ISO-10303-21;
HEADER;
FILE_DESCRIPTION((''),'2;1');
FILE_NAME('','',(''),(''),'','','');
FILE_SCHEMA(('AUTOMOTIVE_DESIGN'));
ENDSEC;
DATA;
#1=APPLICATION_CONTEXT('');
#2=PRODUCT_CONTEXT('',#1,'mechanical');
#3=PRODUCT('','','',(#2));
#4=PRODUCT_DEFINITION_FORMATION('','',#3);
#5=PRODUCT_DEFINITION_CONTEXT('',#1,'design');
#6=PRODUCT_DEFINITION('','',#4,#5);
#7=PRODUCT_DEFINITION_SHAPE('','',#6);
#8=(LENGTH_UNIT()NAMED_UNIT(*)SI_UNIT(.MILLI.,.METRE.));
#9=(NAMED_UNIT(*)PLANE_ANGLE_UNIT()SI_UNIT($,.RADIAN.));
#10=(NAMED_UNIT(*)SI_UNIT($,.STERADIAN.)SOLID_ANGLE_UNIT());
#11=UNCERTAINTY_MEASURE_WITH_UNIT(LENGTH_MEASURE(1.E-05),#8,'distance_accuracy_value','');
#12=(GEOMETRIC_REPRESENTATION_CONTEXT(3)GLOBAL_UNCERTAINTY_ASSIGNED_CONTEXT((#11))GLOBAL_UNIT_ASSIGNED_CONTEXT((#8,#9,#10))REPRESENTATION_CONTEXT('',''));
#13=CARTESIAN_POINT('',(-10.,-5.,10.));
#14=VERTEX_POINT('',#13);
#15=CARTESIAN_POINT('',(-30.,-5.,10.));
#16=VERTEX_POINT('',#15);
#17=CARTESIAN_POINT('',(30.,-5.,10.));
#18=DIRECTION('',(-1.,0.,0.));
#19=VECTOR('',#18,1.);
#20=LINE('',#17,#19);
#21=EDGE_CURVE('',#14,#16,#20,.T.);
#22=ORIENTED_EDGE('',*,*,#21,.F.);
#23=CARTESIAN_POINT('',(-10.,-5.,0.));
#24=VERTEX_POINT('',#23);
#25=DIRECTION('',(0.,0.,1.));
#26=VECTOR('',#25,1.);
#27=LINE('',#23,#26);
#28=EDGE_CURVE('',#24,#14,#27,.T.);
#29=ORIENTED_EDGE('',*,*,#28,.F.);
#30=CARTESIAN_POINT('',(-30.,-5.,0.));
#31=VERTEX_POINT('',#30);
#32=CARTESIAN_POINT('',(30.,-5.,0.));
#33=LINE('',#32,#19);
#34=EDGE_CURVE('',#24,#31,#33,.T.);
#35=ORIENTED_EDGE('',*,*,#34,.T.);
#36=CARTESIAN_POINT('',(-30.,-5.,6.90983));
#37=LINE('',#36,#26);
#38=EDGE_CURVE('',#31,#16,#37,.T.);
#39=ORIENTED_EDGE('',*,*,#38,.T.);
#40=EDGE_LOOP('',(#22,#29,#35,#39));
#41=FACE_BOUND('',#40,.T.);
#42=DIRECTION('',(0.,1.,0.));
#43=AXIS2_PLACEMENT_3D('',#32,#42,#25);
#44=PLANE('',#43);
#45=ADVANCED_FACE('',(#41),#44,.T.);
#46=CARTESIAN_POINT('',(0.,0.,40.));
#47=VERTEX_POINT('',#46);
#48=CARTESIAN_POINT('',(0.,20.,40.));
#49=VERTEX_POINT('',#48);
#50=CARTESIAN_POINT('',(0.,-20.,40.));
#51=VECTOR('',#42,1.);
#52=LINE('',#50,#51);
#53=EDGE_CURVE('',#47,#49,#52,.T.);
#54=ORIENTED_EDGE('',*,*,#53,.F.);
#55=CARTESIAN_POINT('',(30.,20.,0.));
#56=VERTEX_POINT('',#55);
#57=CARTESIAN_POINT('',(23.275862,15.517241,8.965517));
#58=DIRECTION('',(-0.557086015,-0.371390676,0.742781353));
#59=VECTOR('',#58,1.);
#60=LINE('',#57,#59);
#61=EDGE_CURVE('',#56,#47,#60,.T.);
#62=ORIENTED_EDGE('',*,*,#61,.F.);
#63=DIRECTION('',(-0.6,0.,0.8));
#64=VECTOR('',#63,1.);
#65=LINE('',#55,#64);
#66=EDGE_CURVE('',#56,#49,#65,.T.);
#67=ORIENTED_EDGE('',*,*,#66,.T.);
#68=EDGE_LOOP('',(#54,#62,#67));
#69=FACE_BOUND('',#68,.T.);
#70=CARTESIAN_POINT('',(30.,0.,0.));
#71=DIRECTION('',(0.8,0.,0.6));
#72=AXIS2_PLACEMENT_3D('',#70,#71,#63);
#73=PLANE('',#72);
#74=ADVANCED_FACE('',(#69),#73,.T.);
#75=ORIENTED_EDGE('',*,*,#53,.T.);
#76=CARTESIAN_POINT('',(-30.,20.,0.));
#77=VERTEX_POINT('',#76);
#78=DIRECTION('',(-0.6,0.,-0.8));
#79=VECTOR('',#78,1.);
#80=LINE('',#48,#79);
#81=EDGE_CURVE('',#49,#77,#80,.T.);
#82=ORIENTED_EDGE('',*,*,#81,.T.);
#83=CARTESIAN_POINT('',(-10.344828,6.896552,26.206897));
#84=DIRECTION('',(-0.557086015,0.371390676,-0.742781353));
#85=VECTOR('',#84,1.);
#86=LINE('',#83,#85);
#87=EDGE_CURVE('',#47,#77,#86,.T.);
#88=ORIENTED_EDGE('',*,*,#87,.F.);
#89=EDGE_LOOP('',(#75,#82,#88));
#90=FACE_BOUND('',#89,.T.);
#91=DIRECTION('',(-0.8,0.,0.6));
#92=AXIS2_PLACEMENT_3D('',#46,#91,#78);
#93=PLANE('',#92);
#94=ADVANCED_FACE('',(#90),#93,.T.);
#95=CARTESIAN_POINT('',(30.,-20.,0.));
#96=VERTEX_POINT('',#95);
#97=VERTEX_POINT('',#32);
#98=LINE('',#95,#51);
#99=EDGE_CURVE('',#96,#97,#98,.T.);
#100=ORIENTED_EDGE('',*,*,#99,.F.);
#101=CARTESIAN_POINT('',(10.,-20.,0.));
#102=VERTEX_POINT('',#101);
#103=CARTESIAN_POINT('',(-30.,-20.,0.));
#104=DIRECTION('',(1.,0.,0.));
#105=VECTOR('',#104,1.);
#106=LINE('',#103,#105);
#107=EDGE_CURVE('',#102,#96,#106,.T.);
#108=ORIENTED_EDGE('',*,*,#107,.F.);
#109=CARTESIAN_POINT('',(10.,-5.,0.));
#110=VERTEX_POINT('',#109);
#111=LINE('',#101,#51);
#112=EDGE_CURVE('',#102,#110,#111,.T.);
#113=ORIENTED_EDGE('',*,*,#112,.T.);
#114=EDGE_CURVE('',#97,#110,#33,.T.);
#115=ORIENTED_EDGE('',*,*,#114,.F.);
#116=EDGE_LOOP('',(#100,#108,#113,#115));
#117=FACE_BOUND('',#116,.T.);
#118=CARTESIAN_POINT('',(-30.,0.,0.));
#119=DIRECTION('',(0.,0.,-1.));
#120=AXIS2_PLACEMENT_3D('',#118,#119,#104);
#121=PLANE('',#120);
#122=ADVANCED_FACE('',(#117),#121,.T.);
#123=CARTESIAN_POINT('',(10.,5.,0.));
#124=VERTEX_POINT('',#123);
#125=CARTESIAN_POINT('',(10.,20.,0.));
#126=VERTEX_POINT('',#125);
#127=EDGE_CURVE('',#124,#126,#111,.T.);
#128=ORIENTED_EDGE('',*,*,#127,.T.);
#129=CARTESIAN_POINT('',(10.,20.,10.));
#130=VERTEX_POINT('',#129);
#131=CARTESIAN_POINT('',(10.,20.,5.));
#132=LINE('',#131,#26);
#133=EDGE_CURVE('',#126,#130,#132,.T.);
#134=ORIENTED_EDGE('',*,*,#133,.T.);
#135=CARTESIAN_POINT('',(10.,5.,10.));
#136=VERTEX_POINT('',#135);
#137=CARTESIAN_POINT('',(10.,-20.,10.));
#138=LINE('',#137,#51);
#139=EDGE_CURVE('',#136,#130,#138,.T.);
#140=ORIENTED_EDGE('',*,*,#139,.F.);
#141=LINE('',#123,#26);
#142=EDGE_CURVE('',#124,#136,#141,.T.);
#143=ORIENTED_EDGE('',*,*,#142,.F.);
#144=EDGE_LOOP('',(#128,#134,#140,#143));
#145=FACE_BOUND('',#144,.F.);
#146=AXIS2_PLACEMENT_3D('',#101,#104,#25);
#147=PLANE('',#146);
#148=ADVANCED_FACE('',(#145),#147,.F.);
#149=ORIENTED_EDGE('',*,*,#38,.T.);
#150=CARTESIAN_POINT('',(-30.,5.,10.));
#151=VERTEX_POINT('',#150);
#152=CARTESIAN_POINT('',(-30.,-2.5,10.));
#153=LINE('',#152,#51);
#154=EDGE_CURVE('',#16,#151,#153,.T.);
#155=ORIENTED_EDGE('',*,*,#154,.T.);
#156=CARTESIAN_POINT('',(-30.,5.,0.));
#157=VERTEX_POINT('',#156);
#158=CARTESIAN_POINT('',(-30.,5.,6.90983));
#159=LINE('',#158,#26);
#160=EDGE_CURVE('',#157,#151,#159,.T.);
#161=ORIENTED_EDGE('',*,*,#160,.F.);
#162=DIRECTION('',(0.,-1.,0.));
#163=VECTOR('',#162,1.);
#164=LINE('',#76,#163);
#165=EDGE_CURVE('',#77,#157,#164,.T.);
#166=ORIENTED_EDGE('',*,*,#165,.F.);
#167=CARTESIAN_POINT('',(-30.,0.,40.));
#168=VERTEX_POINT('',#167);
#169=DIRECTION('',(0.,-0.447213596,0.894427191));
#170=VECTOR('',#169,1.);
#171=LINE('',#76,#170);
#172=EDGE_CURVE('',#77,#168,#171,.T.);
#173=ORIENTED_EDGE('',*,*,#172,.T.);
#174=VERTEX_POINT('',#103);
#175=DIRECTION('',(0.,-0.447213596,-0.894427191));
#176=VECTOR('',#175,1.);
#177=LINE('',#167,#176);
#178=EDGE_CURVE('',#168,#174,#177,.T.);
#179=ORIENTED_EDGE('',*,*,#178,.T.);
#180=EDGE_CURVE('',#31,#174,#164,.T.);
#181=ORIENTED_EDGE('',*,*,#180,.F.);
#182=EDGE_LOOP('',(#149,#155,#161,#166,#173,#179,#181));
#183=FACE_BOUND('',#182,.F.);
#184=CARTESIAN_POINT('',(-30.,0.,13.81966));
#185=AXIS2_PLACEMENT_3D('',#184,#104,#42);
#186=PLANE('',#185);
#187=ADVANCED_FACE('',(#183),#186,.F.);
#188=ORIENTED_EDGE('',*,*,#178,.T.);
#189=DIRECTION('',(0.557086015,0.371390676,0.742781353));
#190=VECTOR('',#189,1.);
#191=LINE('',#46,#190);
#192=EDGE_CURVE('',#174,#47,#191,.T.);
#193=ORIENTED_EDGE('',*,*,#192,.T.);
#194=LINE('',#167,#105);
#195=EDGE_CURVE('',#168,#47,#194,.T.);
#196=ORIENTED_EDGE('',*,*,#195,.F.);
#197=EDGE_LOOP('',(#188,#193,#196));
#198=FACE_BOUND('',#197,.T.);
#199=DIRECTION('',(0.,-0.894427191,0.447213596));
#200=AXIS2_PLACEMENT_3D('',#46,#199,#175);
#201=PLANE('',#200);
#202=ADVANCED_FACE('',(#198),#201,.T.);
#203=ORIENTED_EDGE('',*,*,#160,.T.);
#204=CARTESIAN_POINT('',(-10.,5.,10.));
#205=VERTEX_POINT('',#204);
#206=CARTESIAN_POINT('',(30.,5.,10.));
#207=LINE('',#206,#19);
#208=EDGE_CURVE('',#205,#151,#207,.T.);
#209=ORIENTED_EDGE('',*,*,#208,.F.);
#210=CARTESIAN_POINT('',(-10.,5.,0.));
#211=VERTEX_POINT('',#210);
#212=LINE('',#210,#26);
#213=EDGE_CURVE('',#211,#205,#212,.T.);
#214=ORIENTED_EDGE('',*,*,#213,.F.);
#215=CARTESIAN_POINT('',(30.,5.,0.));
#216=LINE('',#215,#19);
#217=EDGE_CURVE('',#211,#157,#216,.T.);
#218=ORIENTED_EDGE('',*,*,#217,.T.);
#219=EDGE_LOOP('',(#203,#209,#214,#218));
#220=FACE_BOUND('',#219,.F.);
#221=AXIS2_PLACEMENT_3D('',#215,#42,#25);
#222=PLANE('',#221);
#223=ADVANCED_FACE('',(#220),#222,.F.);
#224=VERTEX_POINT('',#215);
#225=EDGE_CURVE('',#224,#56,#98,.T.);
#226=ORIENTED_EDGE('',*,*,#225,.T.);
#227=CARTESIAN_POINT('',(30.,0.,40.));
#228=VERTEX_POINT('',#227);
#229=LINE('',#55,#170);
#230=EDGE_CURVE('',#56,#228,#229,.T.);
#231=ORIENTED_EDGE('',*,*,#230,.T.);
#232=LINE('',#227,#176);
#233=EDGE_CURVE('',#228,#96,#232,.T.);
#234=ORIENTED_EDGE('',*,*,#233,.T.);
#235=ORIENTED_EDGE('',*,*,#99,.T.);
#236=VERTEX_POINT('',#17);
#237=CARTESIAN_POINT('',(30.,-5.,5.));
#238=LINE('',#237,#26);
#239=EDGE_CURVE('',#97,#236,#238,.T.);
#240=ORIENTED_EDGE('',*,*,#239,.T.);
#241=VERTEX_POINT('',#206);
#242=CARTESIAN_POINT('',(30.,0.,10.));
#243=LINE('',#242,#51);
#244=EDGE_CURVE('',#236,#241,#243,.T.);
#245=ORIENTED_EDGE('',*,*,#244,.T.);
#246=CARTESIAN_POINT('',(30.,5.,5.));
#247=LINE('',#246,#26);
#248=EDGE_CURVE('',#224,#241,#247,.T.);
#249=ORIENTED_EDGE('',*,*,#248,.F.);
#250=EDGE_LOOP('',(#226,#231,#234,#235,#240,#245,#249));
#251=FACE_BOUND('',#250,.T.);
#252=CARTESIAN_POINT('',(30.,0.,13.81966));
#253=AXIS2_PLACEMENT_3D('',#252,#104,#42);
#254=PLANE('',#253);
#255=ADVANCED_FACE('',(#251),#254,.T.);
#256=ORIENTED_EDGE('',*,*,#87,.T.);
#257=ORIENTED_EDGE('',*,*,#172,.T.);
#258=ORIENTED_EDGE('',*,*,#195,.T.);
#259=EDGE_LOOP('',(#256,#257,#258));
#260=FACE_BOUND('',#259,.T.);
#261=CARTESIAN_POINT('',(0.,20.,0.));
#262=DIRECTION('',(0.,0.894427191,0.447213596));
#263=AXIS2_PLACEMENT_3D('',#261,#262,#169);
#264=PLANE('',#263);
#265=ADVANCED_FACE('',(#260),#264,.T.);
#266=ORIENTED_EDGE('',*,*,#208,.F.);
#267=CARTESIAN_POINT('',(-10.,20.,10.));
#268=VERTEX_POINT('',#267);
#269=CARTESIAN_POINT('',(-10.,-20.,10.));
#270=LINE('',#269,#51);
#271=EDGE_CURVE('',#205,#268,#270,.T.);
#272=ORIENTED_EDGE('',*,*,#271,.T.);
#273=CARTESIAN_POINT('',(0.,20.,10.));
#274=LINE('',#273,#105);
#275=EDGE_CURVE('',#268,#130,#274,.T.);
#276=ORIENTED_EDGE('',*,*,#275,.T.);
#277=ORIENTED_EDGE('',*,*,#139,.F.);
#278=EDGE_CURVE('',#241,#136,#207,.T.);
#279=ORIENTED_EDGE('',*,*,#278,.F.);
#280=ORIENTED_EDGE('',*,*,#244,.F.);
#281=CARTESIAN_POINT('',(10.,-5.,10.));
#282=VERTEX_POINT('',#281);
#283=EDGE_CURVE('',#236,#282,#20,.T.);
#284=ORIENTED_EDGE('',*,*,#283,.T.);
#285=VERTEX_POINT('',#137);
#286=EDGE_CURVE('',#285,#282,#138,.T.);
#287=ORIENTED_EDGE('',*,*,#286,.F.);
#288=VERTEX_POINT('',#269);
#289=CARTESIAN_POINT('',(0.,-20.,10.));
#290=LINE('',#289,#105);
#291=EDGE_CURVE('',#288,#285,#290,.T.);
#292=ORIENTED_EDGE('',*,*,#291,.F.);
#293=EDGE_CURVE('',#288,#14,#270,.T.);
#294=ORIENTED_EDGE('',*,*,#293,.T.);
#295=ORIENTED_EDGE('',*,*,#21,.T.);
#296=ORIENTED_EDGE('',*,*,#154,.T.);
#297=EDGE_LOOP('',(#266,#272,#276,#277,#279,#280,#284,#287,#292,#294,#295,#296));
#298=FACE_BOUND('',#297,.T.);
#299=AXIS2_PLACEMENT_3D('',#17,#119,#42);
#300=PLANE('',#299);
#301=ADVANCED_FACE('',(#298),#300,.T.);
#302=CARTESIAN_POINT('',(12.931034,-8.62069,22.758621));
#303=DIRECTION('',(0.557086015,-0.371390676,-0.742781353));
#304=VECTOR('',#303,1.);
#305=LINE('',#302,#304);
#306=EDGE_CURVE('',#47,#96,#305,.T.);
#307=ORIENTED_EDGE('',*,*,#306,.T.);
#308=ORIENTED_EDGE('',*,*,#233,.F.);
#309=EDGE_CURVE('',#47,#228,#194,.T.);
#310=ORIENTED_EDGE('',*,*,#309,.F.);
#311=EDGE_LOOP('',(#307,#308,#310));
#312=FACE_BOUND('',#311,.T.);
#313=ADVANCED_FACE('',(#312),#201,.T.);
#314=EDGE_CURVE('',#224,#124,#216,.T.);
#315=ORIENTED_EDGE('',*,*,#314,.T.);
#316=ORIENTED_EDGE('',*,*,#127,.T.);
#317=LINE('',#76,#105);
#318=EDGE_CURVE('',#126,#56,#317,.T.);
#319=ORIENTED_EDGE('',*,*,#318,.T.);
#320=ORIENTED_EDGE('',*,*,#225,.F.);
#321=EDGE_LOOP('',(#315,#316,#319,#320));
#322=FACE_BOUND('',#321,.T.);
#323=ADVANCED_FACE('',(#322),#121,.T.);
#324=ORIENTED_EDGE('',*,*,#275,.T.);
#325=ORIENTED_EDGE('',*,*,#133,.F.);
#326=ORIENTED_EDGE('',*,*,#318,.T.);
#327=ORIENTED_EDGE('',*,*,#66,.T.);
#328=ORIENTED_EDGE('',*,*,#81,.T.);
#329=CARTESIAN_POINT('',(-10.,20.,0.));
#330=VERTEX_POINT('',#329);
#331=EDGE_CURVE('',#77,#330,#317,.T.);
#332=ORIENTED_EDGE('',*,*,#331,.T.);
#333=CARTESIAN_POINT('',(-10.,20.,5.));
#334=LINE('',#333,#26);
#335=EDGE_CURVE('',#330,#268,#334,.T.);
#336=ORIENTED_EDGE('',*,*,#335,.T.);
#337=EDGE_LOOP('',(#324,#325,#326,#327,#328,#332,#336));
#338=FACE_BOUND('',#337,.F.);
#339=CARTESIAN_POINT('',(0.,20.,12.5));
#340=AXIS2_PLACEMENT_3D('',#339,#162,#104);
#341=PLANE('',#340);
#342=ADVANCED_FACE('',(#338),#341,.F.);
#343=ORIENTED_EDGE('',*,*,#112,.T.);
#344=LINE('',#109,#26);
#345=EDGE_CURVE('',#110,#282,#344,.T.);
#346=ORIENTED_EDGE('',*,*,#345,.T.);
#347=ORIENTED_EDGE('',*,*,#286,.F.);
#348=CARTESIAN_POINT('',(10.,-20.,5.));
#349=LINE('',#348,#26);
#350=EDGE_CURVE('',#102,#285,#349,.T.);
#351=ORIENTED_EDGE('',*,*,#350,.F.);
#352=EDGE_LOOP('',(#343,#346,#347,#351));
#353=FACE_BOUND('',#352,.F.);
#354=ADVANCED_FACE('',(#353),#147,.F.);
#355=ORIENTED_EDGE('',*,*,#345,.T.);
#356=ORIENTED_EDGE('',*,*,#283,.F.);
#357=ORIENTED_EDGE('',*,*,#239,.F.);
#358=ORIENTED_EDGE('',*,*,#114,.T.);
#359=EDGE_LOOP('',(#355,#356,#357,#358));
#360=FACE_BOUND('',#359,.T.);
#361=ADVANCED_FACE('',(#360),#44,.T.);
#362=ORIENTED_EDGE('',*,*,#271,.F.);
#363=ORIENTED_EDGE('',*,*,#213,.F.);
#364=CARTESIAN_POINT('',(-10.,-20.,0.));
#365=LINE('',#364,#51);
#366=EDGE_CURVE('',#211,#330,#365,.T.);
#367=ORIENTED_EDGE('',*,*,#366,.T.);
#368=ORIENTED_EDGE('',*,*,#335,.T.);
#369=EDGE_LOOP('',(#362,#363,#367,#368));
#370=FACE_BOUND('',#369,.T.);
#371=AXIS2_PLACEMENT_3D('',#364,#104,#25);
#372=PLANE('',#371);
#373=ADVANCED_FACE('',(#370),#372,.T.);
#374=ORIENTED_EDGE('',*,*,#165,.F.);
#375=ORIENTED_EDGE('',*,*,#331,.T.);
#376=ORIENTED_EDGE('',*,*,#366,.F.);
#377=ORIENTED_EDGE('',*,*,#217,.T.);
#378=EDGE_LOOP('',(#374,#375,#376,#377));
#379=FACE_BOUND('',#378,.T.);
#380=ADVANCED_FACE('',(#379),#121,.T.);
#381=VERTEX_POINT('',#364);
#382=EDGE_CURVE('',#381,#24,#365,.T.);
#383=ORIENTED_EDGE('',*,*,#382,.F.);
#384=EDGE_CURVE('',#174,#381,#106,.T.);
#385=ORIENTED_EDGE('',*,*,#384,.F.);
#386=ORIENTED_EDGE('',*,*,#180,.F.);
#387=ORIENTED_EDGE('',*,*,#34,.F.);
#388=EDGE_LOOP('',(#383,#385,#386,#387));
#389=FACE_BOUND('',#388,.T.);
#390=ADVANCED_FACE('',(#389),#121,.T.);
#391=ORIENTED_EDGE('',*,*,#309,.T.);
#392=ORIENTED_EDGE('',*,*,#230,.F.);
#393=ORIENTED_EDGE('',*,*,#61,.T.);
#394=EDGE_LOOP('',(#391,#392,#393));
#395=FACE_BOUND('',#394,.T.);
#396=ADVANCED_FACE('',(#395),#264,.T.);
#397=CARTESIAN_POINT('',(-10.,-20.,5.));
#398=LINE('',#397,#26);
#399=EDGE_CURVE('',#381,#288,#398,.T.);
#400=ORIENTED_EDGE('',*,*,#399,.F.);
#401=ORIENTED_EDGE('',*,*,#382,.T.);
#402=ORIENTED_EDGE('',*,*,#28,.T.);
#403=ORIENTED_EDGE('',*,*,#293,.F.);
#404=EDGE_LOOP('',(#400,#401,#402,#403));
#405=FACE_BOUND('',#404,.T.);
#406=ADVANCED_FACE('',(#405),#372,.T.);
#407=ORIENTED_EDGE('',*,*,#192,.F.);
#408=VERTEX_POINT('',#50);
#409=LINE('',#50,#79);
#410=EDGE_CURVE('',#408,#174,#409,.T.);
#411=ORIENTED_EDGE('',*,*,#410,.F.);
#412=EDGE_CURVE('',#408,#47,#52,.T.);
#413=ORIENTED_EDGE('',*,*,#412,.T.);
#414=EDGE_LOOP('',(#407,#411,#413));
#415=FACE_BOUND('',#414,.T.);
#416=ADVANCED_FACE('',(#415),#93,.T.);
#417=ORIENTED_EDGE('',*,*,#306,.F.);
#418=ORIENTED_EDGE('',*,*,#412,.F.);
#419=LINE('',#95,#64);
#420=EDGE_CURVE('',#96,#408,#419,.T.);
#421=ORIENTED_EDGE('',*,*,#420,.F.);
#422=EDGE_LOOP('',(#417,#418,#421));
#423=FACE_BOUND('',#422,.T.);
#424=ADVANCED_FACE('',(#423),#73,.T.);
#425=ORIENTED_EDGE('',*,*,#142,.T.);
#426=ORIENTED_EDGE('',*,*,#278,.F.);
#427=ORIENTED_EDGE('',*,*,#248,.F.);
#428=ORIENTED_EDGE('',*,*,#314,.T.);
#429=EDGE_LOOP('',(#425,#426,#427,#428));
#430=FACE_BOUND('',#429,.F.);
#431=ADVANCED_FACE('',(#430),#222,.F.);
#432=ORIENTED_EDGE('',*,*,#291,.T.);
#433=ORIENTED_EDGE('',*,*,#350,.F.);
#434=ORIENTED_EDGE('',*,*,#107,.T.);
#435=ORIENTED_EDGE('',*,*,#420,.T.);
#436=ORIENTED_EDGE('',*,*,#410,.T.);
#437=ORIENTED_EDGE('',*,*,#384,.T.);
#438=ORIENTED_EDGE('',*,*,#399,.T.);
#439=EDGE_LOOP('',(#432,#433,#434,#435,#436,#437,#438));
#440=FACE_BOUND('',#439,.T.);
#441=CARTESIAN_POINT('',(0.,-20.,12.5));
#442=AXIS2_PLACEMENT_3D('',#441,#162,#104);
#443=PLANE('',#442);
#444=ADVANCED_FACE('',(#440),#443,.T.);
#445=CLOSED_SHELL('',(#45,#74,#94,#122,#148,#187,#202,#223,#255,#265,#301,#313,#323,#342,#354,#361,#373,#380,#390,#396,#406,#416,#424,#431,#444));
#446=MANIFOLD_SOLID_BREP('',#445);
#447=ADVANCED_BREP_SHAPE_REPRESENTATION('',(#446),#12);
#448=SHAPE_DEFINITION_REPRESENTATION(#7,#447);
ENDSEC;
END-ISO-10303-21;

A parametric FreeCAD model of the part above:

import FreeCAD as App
import Part
import Sketcher
from FreeCAD import Vector
Q = App.Units.Quantity

doc = App.newDocument("Part")
body = doc.addObject("PartDesign::Body", "Body")

# Sketch on XZ plane
sketch1 = body.newObject("Sketcher::SketchObject", "Sketch")
sketch1.AttachmentSupport = (doc.getObject("XZ_Plane"), [""])
sketch1.MapMode = "FlatFace"
sketch1.addGeometry([
    Part.LineSegment(Vector(0, 40, 0), Vector(-30, 0, 0)),
    Part.LineSegment(Vector(-30, 0, 0), Vector(30, 0, 0)),
    Part.LineSegment(Vector(30, 0, 0), Vector(0, 40, 0)),
], False)
sketch1.addConstraint([
    Sketcher.Constraint("Coincident", 0, 2, 1, 1),
    Sketcher.Constraint("Coincident", 1, 2, 2, 1),
    Sketcher.Constraint("Coincident", 2, 2, 0, 1),
    Sketcher.Constraint("Horizontal", 1),
    Sketcher.Constraint("Symmetric", 0, 2, 1, 2, -1, 1),
    Sketcher.Constraint("PointOnObject", 2, 2, -2),
    Sketcher.Constraint("DistanceX", 1, 1, 1, 2, Q("60 mm")),
    Sketcher.Constraint("Distance", 0, Q("50 mm")),
])
pad1 = body.newObject("PartDesign::Pad", "Pad")
pad1.Profile = sketch1
pad1.Length = 40
pad1.Midplane = True

# Sketch on YZ plane
sketch2 = body.newObject("Sketcher::SketchObject", "Sketch001")
sketch2.AttachmentSupport = (doc.getObject("YZ_Plane"), [""])
sketch2.MapMode = "FlatFace"
sketch2.addGeometry([
    Part.LineSegment(Vector(20, 0, 0), Vector(0, 40, 0)),
    Part.LineSegment(Vector(0, 40, 0), Vector(-20, 0, 0)),
    Part.LineSegment(Vector(-20, 0, 0), Vector(20, 0, 0)),
], False)
sketch2.addConstraint([
    Sketcher.Constraint("Coincident", 0, 2, 1, 1),
    Sketcher.Constraint("Coincident", 1, 2, 2, 1),
    Sketcher.Constraint("Coincident", 2, 2, 0, 1),
    Sketcher.Constraint("Horizontal", 2),
    Sketcher.Constraint("Symmetric", 1, 2, 2, 2, -1, 1),
    Sketcher.Constraint("PointOnObject", 0, 2, -2),
    Sketcher.Constraint("DistanceX", 2, 1, 2, 2, Q("40 mm")),
    Sketcher.Constraint("DistanceY", -1, 1, 0, 2, Q("40 mm")),
])
pad2 = body.newObject("PartDesign::Pad", "Pad001")
pad2.Profile = sketch2
pad2.Length = 60
pad2.Midplane = True

# Sketch on XZ plane
sketch3 = body.newObject("Sketcher::SketchObject", "Sketch002")
sketch3.AttachmentSupport = (doc.getObject("XZ_Plane"), [""])
sketch3.MapMode = "FlatFace"
sketch3.AttachmentOffset = App.Placement(Vector(0, 0, 20), App.Rotation())
sketch3.addGeometry([
    Part.LineSegment(Vector(-10, 10, 0), Vector(-10, 0, 0)),
    Part.LineSegment(Vector(-10, 0, 0), Vector(10, 0, 0)),
    Part.LineSegment(Vector(10, 0, 0), Vector(10, 10, 0)),
    Part.LineSegment(Vector(10, 10, 0), Vector(-10, 10, 0)),
], False)
sketch3.addConstraint([
    Sketcher.Constraint("Coincident", 0, 2, 1, 1),
    Sketcher.Constraint("Coincident", 1, 2, 2, 1),
    Sketcher.Constraint("Coincident", 2, 2, 3, 1),
    Sketcher.Constraint("Coincident", 3, 2, 0, 1),
    Sketcher.Constraint("Vertical", 0),
    Sketcher.Constraint("Horizontal", 1),
    Sketcher.Constraint("Vertical", 2),
    Sketcher.Constraint("Horizontal", 3),
    Sketcher.Constraint("Symmetric", 0, 2, 1, 2, -1, 1),
    Sketcher.Constraint("DistanceX", 1, 1, 1, 2, Q("20 mm")),
    Sketcher.Constraint("DistanceY", 0, 2, 0, 1, Q("10 mm")),
])
pocket1 = body.newObject("PartDesign::Pocket", "Pocket")
pocket1.Profile = sketch3
pocket1.Type = "ThroughAll"

# Sketch on YZ plane
sketch4 = body.newObject("Sketcher::SketchObject", "Sketch003")
sketch4.AttachmentSupport = (doc.getObject("YZ_Plane"), [""])
sketch4.MapMode = "FlatFace"
sketch4.AttachmentOffset = App.Placement(Vector(0, 0, 30), App.Rotation())
sketch4.addGeometry([
    Part.LineSegment(Vector(-5, 10, 0), Vector(-5, 0, 0)),
    Part.LineSegment(Vector(-5, 0, 0), Vector(5, 0, 0)),
    Part.LineSegment(Vector(5, 0, 0), Vector(5, 10, 0)),
    Part.LineSegment(Vector(5, 10, 0), Vector(-5, 10, 0)),
], False)
sketch4.addConstraint([
    Sketcher.Constraint("Coincident", 0, 2, 1, 1),
    Sketcher.Constraint("Coincident", 1, 2, 2, 1),
    Sketcher.Constraint("Coincident", 2, 2, 3, 1),
    Sketcher.Constraint("Coincident", 3, 2, 0, 1),
    Sketcher.Constraint("Vertical", 0),
    Sketcher.Constraint("Horizontal", 1),
    Sketcher.Constraint("Vertical", 2),
    Sketcher.Constraint("Horizontal", 3),
    Sketcher.Constraint("Symmetric", 0, 2, 1, 2, -1, 1),
    Sketcher.Constraint("Equal", 3, 0),
    Sketcher.Constraint("DistanceX", 1, 1, 1, 2, Q("10 mm")),
])
pocket2 = body.newObject("PartDesign::Pocket", "Pocket001")
pocket2.Profile = sketch4
pocket2.Length = 64.9

doc.recompute()
